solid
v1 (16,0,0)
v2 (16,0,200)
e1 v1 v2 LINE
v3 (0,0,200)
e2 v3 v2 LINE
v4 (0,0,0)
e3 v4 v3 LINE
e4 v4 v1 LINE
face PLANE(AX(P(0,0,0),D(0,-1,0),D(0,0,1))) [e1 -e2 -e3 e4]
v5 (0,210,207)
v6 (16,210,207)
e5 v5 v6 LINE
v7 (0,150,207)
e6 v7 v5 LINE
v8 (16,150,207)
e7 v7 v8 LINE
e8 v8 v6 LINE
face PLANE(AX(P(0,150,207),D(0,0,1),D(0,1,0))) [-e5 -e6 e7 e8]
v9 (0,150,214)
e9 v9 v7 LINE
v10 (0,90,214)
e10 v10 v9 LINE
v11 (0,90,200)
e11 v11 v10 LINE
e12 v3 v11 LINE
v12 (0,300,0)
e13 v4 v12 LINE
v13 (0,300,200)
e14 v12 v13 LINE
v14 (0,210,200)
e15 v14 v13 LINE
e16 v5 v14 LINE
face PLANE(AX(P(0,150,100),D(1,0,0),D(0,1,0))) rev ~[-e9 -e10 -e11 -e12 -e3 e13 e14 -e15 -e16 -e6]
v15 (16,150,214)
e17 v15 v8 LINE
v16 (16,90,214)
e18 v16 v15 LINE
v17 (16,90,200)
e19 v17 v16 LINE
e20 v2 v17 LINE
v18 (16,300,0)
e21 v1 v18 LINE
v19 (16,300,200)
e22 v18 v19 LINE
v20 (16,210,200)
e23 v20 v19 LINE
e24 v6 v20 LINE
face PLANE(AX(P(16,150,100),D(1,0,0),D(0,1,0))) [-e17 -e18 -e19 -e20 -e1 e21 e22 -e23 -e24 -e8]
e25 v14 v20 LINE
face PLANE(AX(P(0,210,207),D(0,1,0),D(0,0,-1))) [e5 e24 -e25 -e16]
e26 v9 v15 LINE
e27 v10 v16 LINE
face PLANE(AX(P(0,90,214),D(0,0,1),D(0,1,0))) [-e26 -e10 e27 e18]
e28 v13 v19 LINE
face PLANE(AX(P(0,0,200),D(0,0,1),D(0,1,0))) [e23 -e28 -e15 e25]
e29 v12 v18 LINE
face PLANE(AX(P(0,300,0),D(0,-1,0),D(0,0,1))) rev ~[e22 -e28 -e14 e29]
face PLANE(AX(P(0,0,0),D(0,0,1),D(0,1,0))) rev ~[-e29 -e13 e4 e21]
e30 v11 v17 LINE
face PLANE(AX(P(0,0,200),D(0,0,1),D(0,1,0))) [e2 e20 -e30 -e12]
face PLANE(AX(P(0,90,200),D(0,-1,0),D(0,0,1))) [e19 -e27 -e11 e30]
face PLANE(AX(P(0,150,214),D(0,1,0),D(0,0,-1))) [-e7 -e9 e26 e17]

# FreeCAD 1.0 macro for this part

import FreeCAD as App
import Part
import Sketcher
Q = App.Units.Quantity

doc = App.newDocument("Part")
params = doc.addObject("Spreadsheet::Sheet", "Params")
for row, (alias, value) in enumerate([
    ("sketch1_width", "300 mm"),
    ("sketch1_height", "200 mm"),
    ("pad1_length", "16 mm"),
    ("sketch2_width", "120 mm"),
    ("sketch2_height", "7 mm"),
    ("pad2_length", "16 mm"),
], start=1):
    params.set(f"A{row}", alias)
    params.set(f"B{row}", "=" + value)
    params.setAlias(f"B{row}", alias)

body = doc.addObject("PartDesign::Body", "Body")

# Sketch on YZ plane
sketch1 = body.newObject("Sketcher::SketchObject", "Sketch")
sketch1.AttachmentSupport = (doc.getObject("YZ_Plane"), [""])
sketch1.MapMode = "FlatFace"
sketch1.addGeometry([
    Part.LineSegment(App.Vector(0, 200, 0), App.Vector(0, 0, 0)),
    Part.LineSegment(App.Vector(0, 0, 0), App.Vector(300, 0, 0)),
    Part.LineSegment(App.Vector(300, 0, 0), App.Vector(300, 200, 0)),
    Part.LineSegment(App.Vector(300, 200, 0), App.Vector(0, 200, 0)),
], False)
sketch1.addConstraint([
    Sketcher.Constraint("Coincident", 0, 2, 1, 1),
    Sketcher.Constraint("Coincident", 1, 2, 2, 1),
    Sketcher.Constraint("Coincident", 2, 2, 3, 1),
    Sketcher.Constraint("Coincident", 3, 2, 0, 1),
    Sketcher.Constraint("Vertical", 0),
    Sketcher.Constraint("Horizontal", 1),
    Sketcher.Constraint("Vertical", 2),
    Sketcher.Constraint("Horizontal", 3),
    Sketcher.Constraint("Coincident", 0, 2, -1, 1),
    Sketcher.Constraint("DistanceX", 1, 1, 1, 2, Q("300 mm")),
    Sketcher.Constraint("DistanceY", 0, 2, 0, 1, Q("200 mm")),
])
sketch1.setExpression("Constraints[9]", "Params.sketch1_width")
sketch1.setExpression("Constraints[10]", "Params.sketch1_height")
pad1 = body.newObject("PartDesign::Pad", "Pad")
pad1.Profile = sketch1
pad1.setExpression("Length", "Params.pad1_length")

# Sketch on YZ plane
sketch2 = body.newObject("Sketcher::SketchObject", "Sketch001")
sketch2.AttachmentSupport = (doc.getObject("YZ_Plane"), [""])
sketch2.MapMode = "FlatFace"
sketch2.addGeometry([
    Part.LineSegment(App.Vector(210, 207, 0), App.Vector(210, 200, 0)),  # 0
    Part.LineSegment(App.Vector(210, 200, 0), App.Vector(90, 200, 0)),  # 1
    Part.LineSegment(App.Vector(90, 200, 0), App.Vector(90, 214, 0)),  # 2
    Part.LineSegment(App.Vector(90, 214, 0), App.Vector(150, 214, 0)),  # 3
    Part.LineSegment(App.Vector(150, 214, 0), App.Vector(150, 207, 0)),  # 4
    Part.LineSegment(App.Vector(150, 207, 0), App.Vector(210, 207, 0)),  # 5
], False)
sketch2.addConstraint([
    Sketcher.Constraint("Coincident", 0, 2, 1, 1),
    Sketcher.Constraint("Coincident", 1, 2, 2, 1),
    Sketcher.Constraint("Coincident", 2, 2, 3, 1),
    Sketcher.Constraint("Coincident", 3, 2, 4, 1),
    Sketcher.Constraint("Coincident", 4, 2, 5, 1),
    Sketcher.Constraint("Coincident", 5, 2, 0, 1),
    Sketcher.Constraint("Vertical", 0),
    Sketcher.Constraint("Horizontal", 1),
    Sketcher.Constraint("Vertical", 2),
    Sketcher.Constraint("Horizontal", 3),
    Sketcher.Constraint("Vertical", 4),
    Sketcher.Constraint("Horizontal", 5),
    Sketcher.Constraint("Equal", 3, 5),
    Sketcher.Constraint("Equal", 0, 4),
    Sketcher.Constraint("DistanceX", 1, 2, 1, 1, Q("120 mm")),
    Sketcher.Constraint("DistanceY", 0, 2, 0, 1, Q("7 mm")),
    Sketcher.Constraint("DistanceX", -1, 1, 0, 2, Q("210 mm")),
    Sketcher.Constraint("DistanceY", -1, 1, 0, 2, Q("200 mm")),
])
sketch2.setExpression("Constraints[14]", "Params.sketch2_width")
sketch2.setExpression("Constraints[15]", "Params.sketch2_height")
pad2 = body.newObject("PartDesign::Pad", "Pad001")
pad2.Profile = sketch2
pad2.setExpression("Length", "Params.pad2_length")

doc.recompute()
